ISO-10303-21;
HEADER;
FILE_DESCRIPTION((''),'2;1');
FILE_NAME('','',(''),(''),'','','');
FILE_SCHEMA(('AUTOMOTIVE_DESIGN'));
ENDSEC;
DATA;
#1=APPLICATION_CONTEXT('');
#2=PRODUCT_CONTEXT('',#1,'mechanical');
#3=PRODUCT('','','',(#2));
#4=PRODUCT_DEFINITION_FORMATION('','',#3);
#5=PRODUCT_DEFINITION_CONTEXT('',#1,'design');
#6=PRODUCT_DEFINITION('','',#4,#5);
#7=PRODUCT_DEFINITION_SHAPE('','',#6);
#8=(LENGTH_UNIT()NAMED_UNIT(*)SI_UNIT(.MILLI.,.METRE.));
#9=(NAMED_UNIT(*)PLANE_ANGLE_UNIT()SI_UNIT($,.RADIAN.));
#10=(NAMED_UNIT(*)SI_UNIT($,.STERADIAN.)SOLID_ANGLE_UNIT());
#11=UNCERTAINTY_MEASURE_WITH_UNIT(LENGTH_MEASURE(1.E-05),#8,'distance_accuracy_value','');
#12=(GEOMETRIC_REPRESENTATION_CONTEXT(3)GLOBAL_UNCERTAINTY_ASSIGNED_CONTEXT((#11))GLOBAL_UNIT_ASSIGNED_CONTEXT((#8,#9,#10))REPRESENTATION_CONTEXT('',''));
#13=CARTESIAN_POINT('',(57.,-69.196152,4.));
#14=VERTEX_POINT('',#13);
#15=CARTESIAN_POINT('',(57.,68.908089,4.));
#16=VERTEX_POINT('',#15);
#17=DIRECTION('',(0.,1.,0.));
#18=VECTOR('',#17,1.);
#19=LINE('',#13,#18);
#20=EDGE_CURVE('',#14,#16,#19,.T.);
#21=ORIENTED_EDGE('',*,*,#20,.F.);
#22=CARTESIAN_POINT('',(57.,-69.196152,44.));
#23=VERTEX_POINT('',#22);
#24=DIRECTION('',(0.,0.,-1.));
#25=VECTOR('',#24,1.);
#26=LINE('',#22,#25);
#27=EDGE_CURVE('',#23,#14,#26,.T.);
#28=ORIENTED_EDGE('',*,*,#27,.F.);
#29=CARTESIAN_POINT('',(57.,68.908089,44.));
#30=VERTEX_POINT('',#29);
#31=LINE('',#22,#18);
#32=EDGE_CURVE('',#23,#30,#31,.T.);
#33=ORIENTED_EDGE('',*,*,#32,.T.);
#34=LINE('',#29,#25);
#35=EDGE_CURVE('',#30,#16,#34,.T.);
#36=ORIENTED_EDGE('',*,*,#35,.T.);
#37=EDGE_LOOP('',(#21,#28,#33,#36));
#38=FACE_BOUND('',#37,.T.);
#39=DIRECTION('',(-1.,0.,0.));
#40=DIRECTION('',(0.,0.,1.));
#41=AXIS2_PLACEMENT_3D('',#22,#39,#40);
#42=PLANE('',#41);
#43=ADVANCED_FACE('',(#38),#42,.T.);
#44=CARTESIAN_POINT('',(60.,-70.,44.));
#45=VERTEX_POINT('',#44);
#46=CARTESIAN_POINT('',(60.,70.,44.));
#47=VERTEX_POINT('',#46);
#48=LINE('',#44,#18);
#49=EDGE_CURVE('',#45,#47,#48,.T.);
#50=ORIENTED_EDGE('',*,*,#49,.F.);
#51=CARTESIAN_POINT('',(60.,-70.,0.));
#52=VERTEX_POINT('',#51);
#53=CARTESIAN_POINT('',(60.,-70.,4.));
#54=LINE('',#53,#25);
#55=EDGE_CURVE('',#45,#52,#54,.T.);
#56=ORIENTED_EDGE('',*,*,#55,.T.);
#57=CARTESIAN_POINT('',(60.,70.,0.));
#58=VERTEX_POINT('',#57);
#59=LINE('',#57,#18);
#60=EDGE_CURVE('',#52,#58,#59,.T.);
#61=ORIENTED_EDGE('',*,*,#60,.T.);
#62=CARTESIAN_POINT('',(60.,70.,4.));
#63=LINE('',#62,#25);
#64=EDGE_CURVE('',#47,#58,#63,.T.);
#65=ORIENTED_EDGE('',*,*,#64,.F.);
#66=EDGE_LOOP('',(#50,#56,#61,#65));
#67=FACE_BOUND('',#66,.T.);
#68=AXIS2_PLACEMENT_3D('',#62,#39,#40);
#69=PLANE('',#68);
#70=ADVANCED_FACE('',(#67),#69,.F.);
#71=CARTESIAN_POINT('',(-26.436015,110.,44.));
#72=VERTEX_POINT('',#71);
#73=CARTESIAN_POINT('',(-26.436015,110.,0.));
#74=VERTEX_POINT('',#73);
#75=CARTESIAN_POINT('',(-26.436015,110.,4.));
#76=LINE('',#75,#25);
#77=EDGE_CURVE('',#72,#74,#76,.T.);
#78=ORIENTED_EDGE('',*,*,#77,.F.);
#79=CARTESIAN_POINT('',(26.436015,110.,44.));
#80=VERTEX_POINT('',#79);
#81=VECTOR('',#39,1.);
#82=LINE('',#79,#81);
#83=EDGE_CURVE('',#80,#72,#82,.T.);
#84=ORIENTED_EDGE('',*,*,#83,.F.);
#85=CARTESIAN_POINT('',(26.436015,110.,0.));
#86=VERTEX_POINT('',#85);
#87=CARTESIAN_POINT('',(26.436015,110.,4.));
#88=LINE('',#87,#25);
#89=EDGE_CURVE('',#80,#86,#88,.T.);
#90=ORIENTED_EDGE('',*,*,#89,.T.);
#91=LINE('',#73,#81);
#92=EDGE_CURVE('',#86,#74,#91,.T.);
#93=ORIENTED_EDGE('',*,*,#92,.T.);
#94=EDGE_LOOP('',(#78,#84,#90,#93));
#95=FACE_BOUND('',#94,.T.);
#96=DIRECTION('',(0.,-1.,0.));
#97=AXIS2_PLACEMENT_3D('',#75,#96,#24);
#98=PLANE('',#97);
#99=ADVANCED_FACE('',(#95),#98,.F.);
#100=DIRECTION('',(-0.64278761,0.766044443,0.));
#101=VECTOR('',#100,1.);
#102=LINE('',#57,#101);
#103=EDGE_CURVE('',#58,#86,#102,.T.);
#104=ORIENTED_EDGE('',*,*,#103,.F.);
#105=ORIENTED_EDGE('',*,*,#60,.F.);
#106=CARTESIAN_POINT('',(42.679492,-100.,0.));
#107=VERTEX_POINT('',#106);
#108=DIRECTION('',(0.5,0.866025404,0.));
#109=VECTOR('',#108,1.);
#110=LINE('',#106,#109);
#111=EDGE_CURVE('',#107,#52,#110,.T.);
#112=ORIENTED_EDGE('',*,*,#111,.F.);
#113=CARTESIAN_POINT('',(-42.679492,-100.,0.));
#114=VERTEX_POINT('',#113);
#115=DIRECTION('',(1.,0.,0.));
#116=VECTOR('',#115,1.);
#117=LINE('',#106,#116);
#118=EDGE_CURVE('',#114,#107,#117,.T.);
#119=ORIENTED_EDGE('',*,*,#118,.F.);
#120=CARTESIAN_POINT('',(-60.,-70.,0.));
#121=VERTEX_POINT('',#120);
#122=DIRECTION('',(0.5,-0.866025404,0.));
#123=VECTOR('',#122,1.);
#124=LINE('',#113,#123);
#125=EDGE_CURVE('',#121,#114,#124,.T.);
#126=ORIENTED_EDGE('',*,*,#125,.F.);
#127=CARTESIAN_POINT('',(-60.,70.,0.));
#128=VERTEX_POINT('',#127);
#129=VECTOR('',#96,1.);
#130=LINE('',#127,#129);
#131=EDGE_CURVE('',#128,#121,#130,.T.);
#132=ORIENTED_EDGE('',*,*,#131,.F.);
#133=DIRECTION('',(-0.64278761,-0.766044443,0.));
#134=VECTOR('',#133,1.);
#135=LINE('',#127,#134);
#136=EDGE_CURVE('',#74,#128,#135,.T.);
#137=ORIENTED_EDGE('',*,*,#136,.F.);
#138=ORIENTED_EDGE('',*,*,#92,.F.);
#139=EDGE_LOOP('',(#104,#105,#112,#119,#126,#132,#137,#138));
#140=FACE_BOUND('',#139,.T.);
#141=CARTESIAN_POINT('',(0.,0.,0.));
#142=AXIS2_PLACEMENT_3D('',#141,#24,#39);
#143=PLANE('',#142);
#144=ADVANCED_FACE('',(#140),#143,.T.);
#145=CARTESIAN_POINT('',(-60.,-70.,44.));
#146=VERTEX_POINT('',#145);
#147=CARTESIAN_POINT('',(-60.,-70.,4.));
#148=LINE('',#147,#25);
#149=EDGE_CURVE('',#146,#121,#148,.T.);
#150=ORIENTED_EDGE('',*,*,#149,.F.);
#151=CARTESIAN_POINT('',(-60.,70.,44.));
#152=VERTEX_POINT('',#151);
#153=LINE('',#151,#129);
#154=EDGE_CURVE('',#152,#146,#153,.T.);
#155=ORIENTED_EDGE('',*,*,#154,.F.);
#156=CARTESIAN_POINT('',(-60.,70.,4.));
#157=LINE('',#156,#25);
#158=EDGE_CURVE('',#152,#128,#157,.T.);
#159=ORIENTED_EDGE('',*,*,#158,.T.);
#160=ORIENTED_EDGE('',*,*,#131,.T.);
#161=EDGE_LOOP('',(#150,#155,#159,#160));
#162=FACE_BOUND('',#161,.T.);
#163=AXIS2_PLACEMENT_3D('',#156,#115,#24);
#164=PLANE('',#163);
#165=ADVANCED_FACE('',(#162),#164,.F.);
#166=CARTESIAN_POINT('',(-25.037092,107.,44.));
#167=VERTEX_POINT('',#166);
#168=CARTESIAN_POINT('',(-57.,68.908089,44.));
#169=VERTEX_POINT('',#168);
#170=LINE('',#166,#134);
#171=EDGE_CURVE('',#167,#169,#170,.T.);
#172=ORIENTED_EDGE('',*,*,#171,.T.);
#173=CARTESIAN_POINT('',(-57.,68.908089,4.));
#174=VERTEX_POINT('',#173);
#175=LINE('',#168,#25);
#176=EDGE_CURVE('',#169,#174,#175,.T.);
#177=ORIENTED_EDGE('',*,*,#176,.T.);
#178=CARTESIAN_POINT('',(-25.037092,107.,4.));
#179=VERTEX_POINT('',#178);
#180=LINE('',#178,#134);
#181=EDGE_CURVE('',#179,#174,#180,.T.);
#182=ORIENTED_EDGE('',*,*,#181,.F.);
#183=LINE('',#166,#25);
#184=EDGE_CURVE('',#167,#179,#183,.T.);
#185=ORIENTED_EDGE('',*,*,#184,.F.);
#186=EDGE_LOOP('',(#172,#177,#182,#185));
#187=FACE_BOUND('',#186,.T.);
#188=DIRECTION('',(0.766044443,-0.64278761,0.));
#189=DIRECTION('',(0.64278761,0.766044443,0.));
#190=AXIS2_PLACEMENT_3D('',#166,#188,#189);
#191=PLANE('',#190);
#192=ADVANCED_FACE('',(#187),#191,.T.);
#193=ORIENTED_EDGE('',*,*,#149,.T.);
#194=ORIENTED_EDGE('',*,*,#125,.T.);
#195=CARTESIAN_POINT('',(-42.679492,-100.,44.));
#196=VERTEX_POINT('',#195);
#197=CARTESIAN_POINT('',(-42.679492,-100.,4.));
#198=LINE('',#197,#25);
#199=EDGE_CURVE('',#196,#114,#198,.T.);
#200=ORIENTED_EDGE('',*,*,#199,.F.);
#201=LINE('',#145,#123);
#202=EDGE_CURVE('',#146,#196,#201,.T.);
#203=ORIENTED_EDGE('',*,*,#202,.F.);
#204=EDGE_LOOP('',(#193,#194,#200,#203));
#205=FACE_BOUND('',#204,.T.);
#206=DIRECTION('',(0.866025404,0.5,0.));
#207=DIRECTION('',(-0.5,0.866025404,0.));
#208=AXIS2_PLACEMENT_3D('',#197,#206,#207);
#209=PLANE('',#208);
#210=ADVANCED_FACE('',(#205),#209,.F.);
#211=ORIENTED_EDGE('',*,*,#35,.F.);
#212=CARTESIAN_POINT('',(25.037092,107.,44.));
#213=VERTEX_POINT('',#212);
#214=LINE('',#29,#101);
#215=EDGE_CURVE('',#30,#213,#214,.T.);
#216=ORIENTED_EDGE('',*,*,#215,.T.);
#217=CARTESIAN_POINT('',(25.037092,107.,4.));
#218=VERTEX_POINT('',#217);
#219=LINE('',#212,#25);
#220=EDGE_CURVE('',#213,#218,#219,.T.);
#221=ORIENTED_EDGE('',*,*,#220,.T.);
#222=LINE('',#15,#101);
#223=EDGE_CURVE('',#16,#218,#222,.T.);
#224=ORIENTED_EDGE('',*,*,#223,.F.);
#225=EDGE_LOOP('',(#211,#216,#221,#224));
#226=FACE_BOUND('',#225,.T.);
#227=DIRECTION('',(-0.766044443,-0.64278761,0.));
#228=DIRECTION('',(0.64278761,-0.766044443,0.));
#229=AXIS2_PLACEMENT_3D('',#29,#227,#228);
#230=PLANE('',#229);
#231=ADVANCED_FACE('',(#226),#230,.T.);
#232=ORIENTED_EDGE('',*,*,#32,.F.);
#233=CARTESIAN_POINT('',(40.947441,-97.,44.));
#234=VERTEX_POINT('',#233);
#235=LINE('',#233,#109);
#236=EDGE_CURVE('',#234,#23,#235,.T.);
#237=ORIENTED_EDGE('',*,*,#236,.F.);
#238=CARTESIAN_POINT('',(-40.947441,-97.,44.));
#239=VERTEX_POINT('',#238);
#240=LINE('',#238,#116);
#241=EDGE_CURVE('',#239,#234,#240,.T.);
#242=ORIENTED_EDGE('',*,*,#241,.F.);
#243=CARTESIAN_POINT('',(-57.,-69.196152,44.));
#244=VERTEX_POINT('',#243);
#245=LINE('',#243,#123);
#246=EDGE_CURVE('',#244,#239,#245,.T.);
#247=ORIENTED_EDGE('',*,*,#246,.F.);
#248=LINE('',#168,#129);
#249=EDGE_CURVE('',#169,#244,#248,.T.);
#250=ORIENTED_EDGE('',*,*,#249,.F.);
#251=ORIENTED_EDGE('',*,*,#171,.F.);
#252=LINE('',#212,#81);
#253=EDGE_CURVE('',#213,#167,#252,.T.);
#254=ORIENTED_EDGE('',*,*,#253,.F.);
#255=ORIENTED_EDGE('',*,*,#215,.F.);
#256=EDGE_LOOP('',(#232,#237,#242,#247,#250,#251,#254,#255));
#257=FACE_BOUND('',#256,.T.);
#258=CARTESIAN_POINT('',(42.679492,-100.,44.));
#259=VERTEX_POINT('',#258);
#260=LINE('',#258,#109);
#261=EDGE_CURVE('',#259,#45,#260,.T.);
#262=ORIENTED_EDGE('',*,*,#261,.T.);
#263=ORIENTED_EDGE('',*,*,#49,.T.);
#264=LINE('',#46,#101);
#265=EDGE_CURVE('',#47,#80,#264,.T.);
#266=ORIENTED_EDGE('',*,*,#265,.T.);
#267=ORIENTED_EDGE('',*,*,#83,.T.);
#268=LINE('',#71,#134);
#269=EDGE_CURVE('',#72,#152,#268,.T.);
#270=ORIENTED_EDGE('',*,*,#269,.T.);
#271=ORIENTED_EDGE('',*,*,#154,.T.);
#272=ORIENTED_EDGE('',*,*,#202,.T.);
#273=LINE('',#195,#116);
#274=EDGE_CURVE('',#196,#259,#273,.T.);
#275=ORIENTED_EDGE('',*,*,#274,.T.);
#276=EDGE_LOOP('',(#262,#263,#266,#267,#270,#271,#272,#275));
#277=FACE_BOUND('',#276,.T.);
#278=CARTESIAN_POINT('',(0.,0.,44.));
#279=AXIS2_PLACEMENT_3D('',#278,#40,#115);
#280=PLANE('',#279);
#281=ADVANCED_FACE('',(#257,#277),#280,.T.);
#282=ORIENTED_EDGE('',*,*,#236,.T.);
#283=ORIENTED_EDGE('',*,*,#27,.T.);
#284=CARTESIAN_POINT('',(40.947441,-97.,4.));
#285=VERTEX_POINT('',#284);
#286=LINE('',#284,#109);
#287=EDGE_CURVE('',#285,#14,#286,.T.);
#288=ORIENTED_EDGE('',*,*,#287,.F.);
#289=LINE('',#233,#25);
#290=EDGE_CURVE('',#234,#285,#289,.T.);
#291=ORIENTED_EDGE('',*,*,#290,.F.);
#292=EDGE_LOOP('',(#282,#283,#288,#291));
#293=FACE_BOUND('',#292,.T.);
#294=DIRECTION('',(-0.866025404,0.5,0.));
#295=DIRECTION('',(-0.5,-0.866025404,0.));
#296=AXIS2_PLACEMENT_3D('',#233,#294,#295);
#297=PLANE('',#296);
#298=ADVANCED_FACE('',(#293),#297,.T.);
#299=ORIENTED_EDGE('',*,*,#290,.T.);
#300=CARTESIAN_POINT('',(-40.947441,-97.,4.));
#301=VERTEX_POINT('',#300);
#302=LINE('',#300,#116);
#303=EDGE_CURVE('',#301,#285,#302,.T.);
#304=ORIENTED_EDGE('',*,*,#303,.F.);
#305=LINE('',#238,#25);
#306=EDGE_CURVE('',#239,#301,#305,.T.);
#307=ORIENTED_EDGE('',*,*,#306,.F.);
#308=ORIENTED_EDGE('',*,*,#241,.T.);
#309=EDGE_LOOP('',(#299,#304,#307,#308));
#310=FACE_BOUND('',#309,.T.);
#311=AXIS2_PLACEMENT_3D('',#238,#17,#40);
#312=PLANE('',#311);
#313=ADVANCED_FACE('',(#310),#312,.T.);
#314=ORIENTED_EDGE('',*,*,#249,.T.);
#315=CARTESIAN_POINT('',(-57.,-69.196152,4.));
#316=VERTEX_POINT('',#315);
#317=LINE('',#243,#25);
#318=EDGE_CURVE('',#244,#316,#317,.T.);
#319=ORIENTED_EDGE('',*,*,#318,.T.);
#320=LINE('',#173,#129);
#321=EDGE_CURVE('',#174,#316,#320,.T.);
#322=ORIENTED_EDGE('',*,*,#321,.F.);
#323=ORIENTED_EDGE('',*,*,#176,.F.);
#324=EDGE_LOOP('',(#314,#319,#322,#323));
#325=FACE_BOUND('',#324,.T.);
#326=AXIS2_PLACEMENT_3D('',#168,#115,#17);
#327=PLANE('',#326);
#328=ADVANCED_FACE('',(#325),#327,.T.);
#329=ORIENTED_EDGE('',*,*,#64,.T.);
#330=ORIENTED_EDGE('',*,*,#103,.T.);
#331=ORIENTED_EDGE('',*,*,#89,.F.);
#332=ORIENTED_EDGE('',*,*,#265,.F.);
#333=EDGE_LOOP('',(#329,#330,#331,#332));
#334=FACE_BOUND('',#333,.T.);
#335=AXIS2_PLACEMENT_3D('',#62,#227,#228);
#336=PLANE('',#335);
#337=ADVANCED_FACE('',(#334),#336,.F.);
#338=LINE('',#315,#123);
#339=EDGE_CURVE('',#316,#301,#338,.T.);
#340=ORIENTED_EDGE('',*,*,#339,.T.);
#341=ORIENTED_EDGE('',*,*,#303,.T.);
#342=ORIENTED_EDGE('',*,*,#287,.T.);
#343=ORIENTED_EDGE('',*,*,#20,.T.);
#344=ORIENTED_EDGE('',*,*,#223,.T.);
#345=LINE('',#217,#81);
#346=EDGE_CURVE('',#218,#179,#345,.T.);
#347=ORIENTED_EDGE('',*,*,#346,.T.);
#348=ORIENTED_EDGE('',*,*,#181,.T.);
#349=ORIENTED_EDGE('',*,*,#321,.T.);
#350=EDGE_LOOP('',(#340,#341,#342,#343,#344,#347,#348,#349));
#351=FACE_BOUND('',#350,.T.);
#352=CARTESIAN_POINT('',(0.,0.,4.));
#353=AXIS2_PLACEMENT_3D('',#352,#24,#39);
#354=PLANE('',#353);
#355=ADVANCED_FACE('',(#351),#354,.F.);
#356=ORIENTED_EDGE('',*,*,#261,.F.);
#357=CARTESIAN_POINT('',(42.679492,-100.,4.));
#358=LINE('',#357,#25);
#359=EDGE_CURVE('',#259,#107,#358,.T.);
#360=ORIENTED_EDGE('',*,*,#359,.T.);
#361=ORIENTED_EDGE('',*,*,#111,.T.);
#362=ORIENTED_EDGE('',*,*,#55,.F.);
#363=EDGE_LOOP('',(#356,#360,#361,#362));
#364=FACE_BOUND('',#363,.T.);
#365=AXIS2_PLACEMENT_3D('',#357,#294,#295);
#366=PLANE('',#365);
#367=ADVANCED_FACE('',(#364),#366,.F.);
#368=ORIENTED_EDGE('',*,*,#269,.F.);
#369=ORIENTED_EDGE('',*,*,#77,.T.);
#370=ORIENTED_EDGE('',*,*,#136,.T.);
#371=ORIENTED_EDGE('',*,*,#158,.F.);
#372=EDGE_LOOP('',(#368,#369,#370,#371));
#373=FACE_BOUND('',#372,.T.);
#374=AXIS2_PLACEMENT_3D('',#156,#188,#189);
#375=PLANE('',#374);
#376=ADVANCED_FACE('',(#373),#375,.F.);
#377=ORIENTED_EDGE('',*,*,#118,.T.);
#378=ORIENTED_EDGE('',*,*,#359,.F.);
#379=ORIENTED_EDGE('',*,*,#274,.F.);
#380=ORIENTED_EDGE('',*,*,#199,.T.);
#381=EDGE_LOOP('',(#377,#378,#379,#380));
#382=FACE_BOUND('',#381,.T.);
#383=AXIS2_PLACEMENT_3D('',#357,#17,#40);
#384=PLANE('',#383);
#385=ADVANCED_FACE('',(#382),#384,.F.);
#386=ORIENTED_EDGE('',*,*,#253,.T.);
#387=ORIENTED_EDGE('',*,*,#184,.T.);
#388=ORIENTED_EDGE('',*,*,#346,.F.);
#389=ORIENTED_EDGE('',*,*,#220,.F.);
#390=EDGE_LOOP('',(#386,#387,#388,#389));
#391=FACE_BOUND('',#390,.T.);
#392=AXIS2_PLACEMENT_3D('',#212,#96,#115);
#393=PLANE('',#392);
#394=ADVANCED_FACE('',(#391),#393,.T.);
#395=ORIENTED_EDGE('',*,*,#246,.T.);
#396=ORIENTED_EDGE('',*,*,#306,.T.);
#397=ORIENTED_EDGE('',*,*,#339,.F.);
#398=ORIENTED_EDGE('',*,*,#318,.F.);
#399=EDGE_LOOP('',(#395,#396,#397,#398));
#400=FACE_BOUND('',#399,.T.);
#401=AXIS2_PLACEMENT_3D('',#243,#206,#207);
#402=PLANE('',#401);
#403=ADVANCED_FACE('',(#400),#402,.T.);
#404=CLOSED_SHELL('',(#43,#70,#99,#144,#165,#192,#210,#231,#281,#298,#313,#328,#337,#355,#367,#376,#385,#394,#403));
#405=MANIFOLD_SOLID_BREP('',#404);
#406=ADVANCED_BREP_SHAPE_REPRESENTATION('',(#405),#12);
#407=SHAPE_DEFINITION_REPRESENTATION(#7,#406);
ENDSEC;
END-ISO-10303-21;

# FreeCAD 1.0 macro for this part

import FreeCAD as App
import Part
import Sketcher

V = App.Vector
Q = App.Units.Quantity


def add_polygon(sketch, points):
    """Adds a closed chain of lines whose ends are joined by coincident constraints."""
    first, n = sketch.GeometryCount, len(points)
    for a, b in zip(points, points[1:] + points[:1]):
        sketch.addGeometry(Part.LineSegment(App.Vector(*a, 0), App.Vector(*b, 0)), False)
    for i in range(n):
        sketch.addConstraint(Sketcher.Constraint("Coincident", first + i, 2, first + (i + 1) % n, 1))

doc = App.newDocument("Part")
body = doc.addObject("PartDesign::Body", "Body")

# Sketch on XY plane
sketch1 = body.newObject("Sketcher::SketchObject", "Sketch")
sketch1.AttachmentSupport = (doc.getObject("XY_Plane"), [""])
sketch1.MapMode = "FlatFace"
add_polygon(sketch1, [(-26.436015, 110), (-60, 70), (-60, -70), (-42.679492, -100), (42.679492, -100), (60, -70), (60, 70), (26.436015, 110)])  # lines 0-7
sketch1.addConstraint([
    Sketcher.Constraint("Vertical", 1),
    Sketcher.Constraint("Horizontal", 3),
    Sketcher.Constraint("Vertical", 5),
    Sketcher.Constraint("Horizontal", 7),
    Sketcher.Constraint("Symmetric", 0, 2, 4, 2, -1, 1),
    Sketcher.Constraint("Horizontal", 1, 2, 4, 2),
    Sketcher.Constraint("Horizontal", 0, 2, 5, 2),
    Sketcher.Constraint("Equal", 2, 4),
    Sketcher.Constraint("Equal", 0, 6),
    Sketcher.Constraint("DistanceY", 1, 2, 1, 1, 140.0),
    Sketcher.Constraint("Angle", 0, Q("-130 deg")),
    Sketcher.Constraint("Angle", 2, Q("-60 deg")),
    Sketcher.Constraint("DistanceX", 0, 2, -1, 1, 60.0),
    Sketcher.Constraint("DistanceY", 2, 2, -1, 1, 100.0),
    Sketcher.Constraint("DistanceY", -1, 1, 6, 2, 110.0),
])
pad1 = body.newObject("PartDesign::Pad", "Pad")
pad1.Profile = sketch1
pad1.Length = 4

# Sketch on XY plane
sketch2 = body.newObject("Sketcher::SketchObject", "Sketch001")
sketch2.AttachmentSupport = (doc.getObject("XY_Plane"), [""])
sketch2.MapMode = "FlatFace"
sketch2.AttachmentOffset = App.Placement(V(0, 0, 4), App.Rotation())
add_polygon(sketch2, [(-26.436015, 110), (-60, 70), (-60, -70), (-42.679492, -100), (42.679492, -100), (60, -70), (60, 70), (26.436015, 110)])  # lines 0-7
add_polygon(sketch2, [(-57, 68.908089), (-25.037092, 107), (25.037092, 107), (57, 68.908089), (57, -69.196152), (40.947441, -97), (-40.947441, -97), (-57, -69.196152)])  # lines 8-15
sketch2.addConstraint([
    Sketcher.Constraint("Vertical", 1),
    Sketcher.Constraint("Horizontal", 3),
    Sketcher.Constraint("Vertical", 5),
    Sketcher.Constraint("Horizontal", 7),
    Sketcher.Constraint("Horizontal", 9),
    Sketcher.Constraint("Vertical", 11),
    Sketcher.Constraint("Horizontal", 13),
    Sketcher.Constraint("Vertical", 15),
    Sketcher.Constraint("Symmetric", 0, 2, 4, 2, -1, 1),
    Sketcher.Constraint("Symmetric", 11, 2, 14, 2, -2),
    Sketcher.Constraint("Parallel", 0, 8),
    Sketcher.Constraint("Parallel", 6, 10),
    Sketcher.Constraint("Parallel", 4, 12),
    Sketcher.Constraint("Parallel", 2, 14),
    Sketcher.Constraint("Horizontal", 1, 2, 4, 2),
    Sketcher.Constraint("Horizontal", 0, 2, 5, 2),
    Sketcher.Constraint("Horizontal", 10, 2, 15, 2),
    Sketcher.Constraint("Equal", 2, 4),
    Sketcher.Constraint("Equal", 0, 6),
    Sketcher.Constraint("DistanceY", 1, 2, 1, 1, 140.0),
    Sketcher.Constraint("Angle", 0, Q("-130 deg")),
    Sketcher.Constraint("Angle", 2, Q("-60 deg")),
    Sketcher.Constraint("DistanceX", 0, 2, -1, 1, 60.0),
    Sketcher.Constraint("DistanceY", 2, 2, -1, 1, 100.0),
    Sketcher.Constraint("DistanceY", -1, 1, 6, 2, 110.0),
    Sketcher.Constraint("DistanceY", -1, 1, 8, 2, 107.0),
    Sketcher.Constraint("DistanceX", -1, 1, 10, 2, 57.0),
    Sketcher.Constraint("DistanceY", 12, 2, -1, 1, 97.0),
    Sketcher.Constraint("DistanceY", 11, 2, 11, 1, 138.104242),
    Sketcher.Constraint("DistanceX", 9, 1, 9, 2, 50.074184),
])
pad2 = body.newObject("PartDesign::Pad", "Pad001")
pad2.Profile = sketch2
pad2.Length = 40

doc.recompute()
